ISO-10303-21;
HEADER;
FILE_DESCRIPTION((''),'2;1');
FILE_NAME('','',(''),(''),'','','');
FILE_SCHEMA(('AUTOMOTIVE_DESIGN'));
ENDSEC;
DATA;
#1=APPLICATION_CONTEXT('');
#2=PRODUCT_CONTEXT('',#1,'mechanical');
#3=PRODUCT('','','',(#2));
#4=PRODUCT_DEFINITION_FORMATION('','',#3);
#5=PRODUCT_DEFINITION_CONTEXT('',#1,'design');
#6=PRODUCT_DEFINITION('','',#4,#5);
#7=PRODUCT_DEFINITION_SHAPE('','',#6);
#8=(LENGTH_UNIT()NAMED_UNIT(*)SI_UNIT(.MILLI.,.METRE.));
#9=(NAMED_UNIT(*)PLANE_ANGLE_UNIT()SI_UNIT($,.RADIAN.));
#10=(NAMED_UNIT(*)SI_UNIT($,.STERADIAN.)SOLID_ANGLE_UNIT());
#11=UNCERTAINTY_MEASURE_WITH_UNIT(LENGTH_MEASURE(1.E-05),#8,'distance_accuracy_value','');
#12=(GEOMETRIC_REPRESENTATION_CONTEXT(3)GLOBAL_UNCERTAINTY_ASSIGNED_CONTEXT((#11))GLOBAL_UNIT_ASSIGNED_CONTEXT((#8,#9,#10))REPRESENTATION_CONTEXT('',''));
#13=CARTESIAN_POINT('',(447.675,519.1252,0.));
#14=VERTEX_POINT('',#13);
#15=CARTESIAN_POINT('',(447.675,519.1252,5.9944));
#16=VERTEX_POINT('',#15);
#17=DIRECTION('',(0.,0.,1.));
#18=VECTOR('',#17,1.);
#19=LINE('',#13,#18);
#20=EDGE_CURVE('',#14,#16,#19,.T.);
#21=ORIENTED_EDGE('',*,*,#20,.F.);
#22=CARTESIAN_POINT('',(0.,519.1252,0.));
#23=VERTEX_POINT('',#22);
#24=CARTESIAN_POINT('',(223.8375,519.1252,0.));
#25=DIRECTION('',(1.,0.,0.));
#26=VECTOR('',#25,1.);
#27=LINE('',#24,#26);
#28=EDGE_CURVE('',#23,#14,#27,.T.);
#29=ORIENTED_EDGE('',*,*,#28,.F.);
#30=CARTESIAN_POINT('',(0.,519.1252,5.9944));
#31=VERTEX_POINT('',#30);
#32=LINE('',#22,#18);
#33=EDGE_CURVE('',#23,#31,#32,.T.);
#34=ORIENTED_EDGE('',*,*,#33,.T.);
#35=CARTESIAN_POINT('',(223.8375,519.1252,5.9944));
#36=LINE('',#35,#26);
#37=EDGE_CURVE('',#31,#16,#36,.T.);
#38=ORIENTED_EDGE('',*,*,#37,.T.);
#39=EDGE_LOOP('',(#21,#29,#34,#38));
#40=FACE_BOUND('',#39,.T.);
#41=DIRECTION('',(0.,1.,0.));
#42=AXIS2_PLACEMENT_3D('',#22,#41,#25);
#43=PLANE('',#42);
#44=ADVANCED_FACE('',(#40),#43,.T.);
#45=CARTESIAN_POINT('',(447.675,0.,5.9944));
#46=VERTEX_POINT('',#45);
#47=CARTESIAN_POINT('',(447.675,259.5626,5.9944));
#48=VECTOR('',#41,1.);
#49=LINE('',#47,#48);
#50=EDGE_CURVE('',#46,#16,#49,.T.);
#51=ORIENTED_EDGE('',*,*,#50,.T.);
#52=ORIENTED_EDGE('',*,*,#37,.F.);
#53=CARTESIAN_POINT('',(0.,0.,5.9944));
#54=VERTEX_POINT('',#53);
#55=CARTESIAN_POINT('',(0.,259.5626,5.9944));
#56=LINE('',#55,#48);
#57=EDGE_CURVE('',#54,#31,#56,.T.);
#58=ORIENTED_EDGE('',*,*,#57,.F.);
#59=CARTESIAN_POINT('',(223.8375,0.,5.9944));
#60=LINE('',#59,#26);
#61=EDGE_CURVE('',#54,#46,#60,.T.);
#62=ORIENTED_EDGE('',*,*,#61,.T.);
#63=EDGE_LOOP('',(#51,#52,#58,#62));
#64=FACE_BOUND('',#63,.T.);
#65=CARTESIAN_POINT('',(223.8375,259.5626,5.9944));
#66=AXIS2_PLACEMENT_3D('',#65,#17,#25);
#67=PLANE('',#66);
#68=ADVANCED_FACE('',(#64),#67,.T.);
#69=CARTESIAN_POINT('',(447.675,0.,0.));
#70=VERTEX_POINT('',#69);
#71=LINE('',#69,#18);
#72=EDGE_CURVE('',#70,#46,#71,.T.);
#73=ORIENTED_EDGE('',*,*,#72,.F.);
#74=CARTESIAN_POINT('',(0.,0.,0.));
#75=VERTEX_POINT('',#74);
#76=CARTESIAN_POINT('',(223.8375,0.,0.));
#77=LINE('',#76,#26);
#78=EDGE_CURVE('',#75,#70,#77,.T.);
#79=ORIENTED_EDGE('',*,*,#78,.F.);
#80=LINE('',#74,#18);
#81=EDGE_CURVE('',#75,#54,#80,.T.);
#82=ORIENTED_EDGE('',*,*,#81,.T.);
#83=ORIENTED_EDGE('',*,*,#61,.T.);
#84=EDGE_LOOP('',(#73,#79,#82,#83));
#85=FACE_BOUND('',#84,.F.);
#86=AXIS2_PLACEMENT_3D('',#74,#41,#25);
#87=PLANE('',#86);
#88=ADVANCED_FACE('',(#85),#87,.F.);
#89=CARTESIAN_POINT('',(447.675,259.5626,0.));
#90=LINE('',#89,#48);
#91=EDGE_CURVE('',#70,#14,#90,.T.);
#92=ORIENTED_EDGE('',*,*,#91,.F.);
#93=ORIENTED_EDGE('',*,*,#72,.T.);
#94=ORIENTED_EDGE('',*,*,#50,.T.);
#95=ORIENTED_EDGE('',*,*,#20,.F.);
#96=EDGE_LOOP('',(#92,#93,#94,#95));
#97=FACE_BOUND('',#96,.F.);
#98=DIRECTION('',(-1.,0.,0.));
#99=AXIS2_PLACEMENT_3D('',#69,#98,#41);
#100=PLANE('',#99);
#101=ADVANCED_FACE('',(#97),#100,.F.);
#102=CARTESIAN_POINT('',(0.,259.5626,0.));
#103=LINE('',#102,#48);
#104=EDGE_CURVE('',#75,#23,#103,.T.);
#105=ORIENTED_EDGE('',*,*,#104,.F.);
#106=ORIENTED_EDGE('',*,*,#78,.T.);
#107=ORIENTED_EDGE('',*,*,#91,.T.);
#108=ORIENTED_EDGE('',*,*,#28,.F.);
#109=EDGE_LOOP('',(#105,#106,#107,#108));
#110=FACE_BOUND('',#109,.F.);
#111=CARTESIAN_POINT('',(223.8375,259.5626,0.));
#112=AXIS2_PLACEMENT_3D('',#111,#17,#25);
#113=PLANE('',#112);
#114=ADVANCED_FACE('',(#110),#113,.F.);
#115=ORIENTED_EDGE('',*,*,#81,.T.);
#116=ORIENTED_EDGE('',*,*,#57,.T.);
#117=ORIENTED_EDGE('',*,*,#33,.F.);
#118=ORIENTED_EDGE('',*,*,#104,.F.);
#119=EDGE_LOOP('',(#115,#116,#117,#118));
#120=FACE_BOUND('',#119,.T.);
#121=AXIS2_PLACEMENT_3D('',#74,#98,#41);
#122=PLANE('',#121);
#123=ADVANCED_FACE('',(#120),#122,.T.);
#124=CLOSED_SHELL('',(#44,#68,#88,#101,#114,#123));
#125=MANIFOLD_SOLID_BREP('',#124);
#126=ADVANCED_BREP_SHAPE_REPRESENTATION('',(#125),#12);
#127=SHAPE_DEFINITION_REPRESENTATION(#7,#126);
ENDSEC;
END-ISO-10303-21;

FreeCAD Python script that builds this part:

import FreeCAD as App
import Part
import Sketcher
from FreeCAD import Vector
Q = App.Units.Quantity


def add_polygon(sketch, points):
    """Adds a closed chain of lines whose ends are joined by coincident constraints."""
    first, n = sketch.GeometryCount, len(points)
    for a, b in zip(points, points[1:] + points[:1]):
        sketch.addGeometry(Part.LineSegment(App.Vector(*a, 0), App.Vector(*b, 0)), False)
    for i in range(n):
        sketch.addConstraint(Sketcher.Constraint("Coincident", first + i, 2, first + (i + 1) % n, 1))

doc = App.newDocument("Part")
body = doc.addObject("PartDesign::Body", "Body")

sketch1 = doc.addObject("Sketcher::SketchObject", "Sketch")
body.addObject(sketch1)
sketch1.AttachmentSupport = (doc.XY_Plane, [""])
sketch1.MapMode = "FlatFace"
add_polygon(sketch1, [(0, 519), (0, 0), (448, 0), (448, 519)])
sketch1.addConstraint([
    Sketcher.Constraint("Vertical", 0),
    Sketcher.Constraint("Horizontal", 1),
    Sketcher.Constraint("Vertical", 2),
    Sketcher.Constraint("Horizontal", 3),
    Sketcher.Constraint("Coincident", 0, 2, -1, 1),
    Sketcher.Constraint("DistanceX", 1, 1, 1, 2, Q("17.625 in")),
    Sketcher.Constraint("DistanceY", 0, 2, 0, 1, Q("20.438 in")),
])
pad1 = doc.addObject("PartDesign::Pad", "Pad")
body.addObject(pad1)
pad1.Profile = sketch1
pad1.Length = Q("0.236 in")

doc.recompute()
